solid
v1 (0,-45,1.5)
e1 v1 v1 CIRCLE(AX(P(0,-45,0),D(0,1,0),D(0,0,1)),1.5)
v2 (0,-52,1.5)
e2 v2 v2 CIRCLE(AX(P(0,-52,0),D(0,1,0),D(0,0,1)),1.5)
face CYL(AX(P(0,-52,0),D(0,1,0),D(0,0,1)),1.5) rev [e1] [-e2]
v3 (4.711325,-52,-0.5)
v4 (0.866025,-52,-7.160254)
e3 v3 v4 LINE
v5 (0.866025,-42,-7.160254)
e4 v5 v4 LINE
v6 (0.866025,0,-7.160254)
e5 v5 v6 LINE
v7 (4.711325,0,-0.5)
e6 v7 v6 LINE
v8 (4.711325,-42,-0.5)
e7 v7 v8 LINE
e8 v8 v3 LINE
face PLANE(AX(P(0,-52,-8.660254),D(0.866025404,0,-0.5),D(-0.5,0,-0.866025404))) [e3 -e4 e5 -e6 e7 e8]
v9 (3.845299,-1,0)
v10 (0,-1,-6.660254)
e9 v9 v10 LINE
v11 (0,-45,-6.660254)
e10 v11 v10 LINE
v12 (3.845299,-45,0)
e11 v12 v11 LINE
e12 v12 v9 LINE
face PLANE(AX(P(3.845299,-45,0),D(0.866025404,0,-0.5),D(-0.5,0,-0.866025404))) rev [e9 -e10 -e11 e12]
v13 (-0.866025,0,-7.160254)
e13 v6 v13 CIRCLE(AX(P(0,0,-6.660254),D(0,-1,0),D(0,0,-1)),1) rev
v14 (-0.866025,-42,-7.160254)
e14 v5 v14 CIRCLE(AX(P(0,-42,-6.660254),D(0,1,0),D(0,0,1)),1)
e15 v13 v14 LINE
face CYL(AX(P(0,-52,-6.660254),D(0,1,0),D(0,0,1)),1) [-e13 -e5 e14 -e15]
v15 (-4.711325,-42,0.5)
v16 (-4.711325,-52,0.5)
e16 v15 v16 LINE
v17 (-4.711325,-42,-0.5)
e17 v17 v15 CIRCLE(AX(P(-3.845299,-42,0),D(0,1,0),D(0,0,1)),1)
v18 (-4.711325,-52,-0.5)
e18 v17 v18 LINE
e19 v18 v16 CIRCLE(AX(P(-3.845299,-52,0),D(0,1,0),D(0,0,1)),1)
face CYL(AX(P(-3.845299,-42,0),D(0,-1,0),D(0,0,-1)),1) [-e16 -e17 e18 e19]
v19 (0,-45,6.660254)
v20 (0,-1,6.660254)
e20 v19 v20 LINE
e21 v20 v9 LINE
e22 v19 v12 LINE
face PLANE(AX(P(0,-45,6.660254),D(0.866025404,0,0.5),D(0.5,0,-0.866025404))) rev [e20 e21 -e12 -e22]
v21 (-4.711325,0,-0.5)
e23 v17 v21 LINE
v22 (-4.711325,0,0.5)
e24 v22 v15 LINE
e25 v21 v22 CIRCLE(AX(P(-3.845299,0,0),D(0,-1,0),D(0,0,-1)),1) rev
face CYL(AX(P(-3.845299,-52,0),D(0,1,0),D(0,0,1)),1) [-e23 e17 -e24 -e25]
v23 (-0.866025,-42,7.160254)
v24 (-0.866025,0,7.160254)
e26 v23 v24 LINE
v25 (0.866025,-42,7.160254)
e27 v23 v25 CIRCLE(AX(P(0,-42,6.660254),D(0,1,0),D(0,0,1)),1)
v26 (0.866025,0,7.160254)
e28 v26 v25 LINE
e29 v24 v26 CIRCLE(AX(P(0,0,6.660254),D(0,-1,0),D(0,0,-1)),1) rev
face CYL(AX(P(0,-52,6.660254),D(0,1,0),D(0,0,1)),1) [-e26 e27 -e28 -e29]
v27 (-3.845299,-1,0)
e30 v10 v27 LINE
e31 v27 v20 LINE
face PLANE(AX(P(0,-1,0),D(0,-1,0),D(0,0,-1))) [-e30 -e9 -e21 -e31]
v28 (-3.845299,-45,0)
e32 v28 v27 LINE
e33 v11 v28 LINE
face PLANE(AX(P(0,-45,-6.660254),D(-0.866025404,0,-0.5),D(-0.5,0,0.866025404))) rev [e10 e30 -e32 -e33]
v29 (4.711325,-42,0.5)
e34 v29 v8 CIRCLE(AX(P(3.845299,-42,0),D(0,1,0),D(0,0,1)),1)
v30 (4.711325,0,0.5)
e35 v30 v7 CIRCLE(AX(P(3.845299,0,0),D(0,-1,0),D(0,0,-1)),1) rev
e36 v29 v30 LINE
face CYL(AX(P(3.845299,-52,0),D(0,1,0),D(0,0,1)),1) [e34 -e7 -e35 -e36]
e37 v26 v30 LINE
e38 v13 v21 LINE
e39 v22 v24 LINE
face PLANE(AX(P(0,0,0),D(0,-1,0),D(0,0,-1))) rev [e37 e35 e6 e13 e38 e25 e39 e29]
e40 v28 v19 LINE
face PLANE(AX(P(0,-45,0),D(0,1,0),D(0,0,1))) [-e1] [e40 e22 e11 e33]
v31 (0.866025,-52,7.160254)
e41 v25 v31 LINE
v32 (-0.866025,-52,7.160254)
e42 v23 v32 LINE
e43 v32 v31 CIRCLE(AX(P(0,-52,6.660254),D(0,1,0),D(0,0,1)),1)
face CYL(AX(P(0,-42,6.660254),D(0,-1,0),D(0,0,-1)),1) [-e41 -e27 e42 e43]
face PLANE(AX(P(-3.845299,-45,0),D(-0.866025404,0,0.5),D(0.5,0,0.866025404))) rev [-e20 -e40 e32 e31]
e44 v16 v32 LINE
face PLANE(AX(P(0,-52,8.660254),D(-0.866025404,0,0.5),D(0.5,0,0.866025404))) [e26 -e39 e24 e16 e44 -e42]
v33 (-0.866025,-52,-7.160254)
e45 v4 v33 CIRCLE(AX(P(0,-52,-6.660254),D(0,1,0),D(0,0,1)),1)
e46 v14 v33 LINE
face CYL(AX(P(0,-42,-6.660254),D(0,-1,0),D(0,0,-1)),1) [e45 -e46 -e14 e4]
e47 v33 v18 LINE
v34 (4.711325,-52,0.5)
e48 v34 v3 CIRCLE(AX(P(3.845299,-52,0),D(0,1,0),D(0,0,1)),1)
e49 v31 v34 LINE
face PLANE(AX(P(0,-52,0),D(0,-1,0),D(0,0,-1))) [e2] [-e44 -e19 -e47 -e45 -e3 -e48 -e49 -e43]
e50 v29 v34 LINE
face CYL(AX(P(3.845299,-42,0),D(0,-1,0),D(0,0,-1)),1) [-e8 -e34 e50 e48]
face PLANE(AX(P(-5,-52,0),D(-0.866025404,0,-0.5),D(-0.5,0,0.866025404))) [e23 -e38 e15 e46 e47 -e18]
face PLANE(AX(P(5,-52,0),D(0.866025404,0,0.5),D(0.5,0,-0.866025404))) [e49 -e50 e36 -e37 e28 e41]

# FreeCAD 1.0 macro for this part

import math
import FreeCAD as App
import Part
import Sketcher

V = App.Vector
Q = App.Units.Quantity


def edges_at(feature, points):
    """Names of the edges that pass closest to the given points."""
    edges = feature.Shape.Edges
    near = lambda p: min(range(len(edges)), key=lambda i: edges[i].distToShape(Part.Vertex(*p))[0])
    return sorted({f"Edge{near(p) + 1}" for p in points})


def add_polygon(sketch, points):
    """Adds a closed chain of lines whose ends are joined by coincident constraints."""
    first, n = sketch.GeometryCount, len(points)
    for a, b in zip(points, points[1:] + points[:1]):
        sketch.addGeometry(Part.LineSegment(App.Vector(*a, 0), App.Vector(*b, 0)), False)
    for i in range(n):
        sketch.addConstraint(Sketcher.Constraint("Coincident", first + i, 2, first + (i + 1) % n, 1))

doc = App.newDocument("Part")
body = doc.addObject("PartDesign::Body", "Body")

# Sketch on XZ plane
sketch1 = doc.addObject("Sketcher::SketchObject", "Sketch")
body.addObject(sketch1)
sketch1.AttachmentSupport = (doc.XZ_Plane, [""])
sketch1.MapMode = "FlatFace"
add_polygon(sketch1, [(0, -8.660254), (-5, 0), (0, 8.660254), (5, 0)])  # lines 0-3
sketch1.addConstraint([
    Sketcher.Constraint("Symmetric", 0, 2, 2, 2, -1, 1),
    Sketcher.Constraint("Symmetric", 1, 2, 3, 2, -1, 1),
    Sketcher.Constraint("PointOnObject", 0, 2, -1),
    Sketcher.Constraint("PointOnObject", 1, 2, -2),
    Sketcher.Constraint("Angle", 0, Q("120 deg")),
    Sketcher.Constraint("Distance", 0, Q("10 mm")),
])
pad1 = doc.addObject("PartDesign::Pad", "Pad")
body.addObject(pad1)
pad1.Profile = sketch1
pad1.Length = 52

# Sketch on XZ plane
sketch2 = doc.addObject("Sketcher::SketchObject", "Sketch001")
body.addObject(sketch2)
sketch2.AttachmentSupport = (doc.XZ_Plane, [""])
sketch2.MapMode = "FlatFace"
add_polygon(sketch2, [(0, -6.660254), (-3.845299, 0), (0, 6.660254), (3.845299, 0)])  # lines 0-3
sketch2.addConstraint([
    Sketcher.Constraint("Symmetric", 0, 2, 2, 2, -1, 1),
    Sketcher.Constraint("Symmetric", 1, 2, 3, 2, -1, 1),
    Sketcher.Constraint("PointOnObject", 0, 2, -1),
    Sketcher.Constraint("PointOnObject", 1, 2, -2),
    Sketcher.Constraint("Angle", 0, Q("119.999997 deg")),
    Sketcher.Constraint("Distance", 0, Q("7.690599 mm")),
])
pocket1 = doc.addObject("PartDesign::Pocket", "Pocket")
body.addObject(pocket1)
pocket1.Profile = sketch2
pocket1.Length = 45
pocket1.Reversed = True

# Sketch on XZ plane
sketch3 = doc.addObject("Sketcher::SketchObject", "Sketch002")
body.addObject(sketch3)
sketch3.AttachmentSupport = (doc.XZ_Plane, [""])
sketch3.MapMode = "FlatFace"
sketch3.AttachmentOffset = App.Placement(V(0, 0, 45), App.Rotation())
sketch3.addGeometry(Part.Circle(V(0, 0, 0), V(0, 0, 1), 1.5), False)
sketch3.addConstraint([
    Sketcher.Constraint("Coincident", 0, 3, -1, 1),
    Sketcher.Constraint("Diameter", 0, Q("3 mm")),
])
pocket2 = doc.addObject("PartDesign::Pocket", "Pocket001")
body.addObject(pocket2)
pocket2.Profile = sketch3
pocket2.Type = "ThroughAll"
pocket2.Reversed = True

# Sketch on XZ plane
sketch4 = doc.addObject("Sketcher::SketchObject", "Sketch003")
body.addObject(sketch4)
sketch4.AttachmentSupport = (doc.XZ_Plane, [""])
sketch4.MapMode = "FlatFace"
add_polygon(sketch4, [(0, -6.660254), (-3.845299, 0), (0, 6.660254), (3.845299, 0)])  # lines 0-3
sketch4.addConstraint([
    Sketcher.Constraint("Symmetric", 0, 2, 2, 2, -1, 1),
    Sketcher.Constraint("Symmetric", 1, 2, 3, 2, -1, 1),
    Sketcher.Constraint("PointOnObject", 0, 2, -1),
    Sketcher.Constraint("PointOnObject", 1, 2, -2),
    Sketcher.Constraint("Angle", 0, Q("119.999997 deg")),
    Sketcher.Constraint("Distance", 0, Q("7.690599 mm")),
])
pad2 = doc.addObject("PartDesign::Pad", "Pad001")
body.addObject(pad2)
pad2.Profile = sketch4
pad2.Length = 1

# Sketch on XZ plane
sketch5 = doc.addObject("Sketcher::SketchObject", "Sketch004")
body.addObject(sketch5)
sketch5.AttachmentSupport = (doc.XZ_Plane, [""])
sketch5.MapMode = "FlatFace"
sketch5.AttachmentOffset = App.Placement(V(0, 0, 52), App.Rotation())
sketch5.addGeometry([
    Part.LineSegment(V(0, 8.660254, 0), V(-0.866025, 7.160254, 0)),  # 0
    Part.ArcOfCircle(Part.Circle(V(0, 6.660255, 0), V(0, 0, 1), 0.999999), math.radians(29.999977), math.radians(150.000023)),  # 1
    Part.LineSegment(V(0.866025, 7.160254, 0), V(0, 8.660254, 0)),  # 2
    Part.LineSegment(V(-4.711325, 0.5, 0), V(-5, 0, 0)),  # 3
    Part.LineSegment(V(-5, 0, 0), V(-4.711325, -0.5, 0)),  # 4
    Part.ArcOfCircle(Part.Circle(V(-3.845295, 0, 0), V(0, 0, 1), 1.000004), math.radians(150.000127), math.radians(209.999873)),  # 5
    Part.LineSegment(V(-0.866025, -7.160254, 0), V(0, -8.660254, 0)),  # 6
    Part.LineSegment(V(0, -8.660254, 0), V(0.866025, -7.160254, 0)),  # 7
    Part.ArcOfCircle(Part.Circle(V(0, -6.660255, 0), V(0, 0, 1), 0.999999), math.radians(-150.000023), math.radians(-29.999977)),  # 8
    Part.LineSegment(V(5, 0, 0), V(4.711325, 0.5, 0)),  # 9
    Part.ArcOfCircle(Part.Circle(V(3.845295, 0, 0), V(0, 0, 1), 1.000004), math.radians(-29.999873), math.radians(29.999873)),  # 10
    Part.LineSegment(V(4.711325, -0.5, 0), V(5, 0, 0)),  # 11
], False)
sketch5.addConstraint([
    Sketcher.Constraint("Tangent", 0, 2, 1, 2),
    Sketcher.Constraint("Tangent", 1, 1, 2, 1),
    Sketcher.Constraint("Coincident", 2, 2, 0, 1),
    Sketcher.Constraint("Coincident", 3, 2, 4, 1),
    Sketcher.Constraint("Coincident", 4, 2, 5, 2),
    Sketcher.Constraint("Coincident", 5, 1, 3, 1),
    Sketcher.Constraint("Coincident", 6, 2, 7, 1),
    Sketcher.Constraint("Tangent", 7, 2, 8, 2),
    Sketcher.Constraint("Tangent", 8, 1, 6, 1),
    Sketcher.Constraint("Coincident", 9, 2, 10, 2),
    Sketcher.Constraint("Coincident", 10, 1, 11, 1),
    Sketcher.Constraint("Coincident", 11, 2, 9, 1),
    Sketcher.Constraint("Equal", 1, 8),
    Sketcher.Constraint("Equal", 5, 10),
    Sketcher.Constraint("Symmetric", 1, 3, 8, 3, -1, 1),
    Sketcher.Constraint("Symmetric", 5, 3, 10, 3, -1, 1),
    Sketcher.Constraint("Symmetric", 2, 2, 6, 2, -1, 1),
    Sketcher.Constraint("Symmetric", 3, 2, 11, 2, -1, 1),
    Sketcher.Constraint("Symmetric", 0, 2, 1, 1, -2),
    Sketcher.Constraint("Symmetric", 5, 1, 9, 2, -2),
    Sketcher.Constraint("PointOnObject", 3, 2, -1),
    Sketcher.Constraint("Parallel", 0, 3),
    Sketcher.Constraint("Horizontal", 4, 2, 10, 1),
    Sketcher.Constraint("Vertical", 4, 2, 5, 1),
    Sketcher.Constraint("Radius", 1, Q("0.999999 mm")),
    Sketcher.Constraint("Angle", 0, Q("-119.999988 deg")),
    Sketcher.Constraint("DistanceX", 3, 2, -1, 1, Q("5 mm")),
    Sketcher.Constraint("DistanceY", 4, 2, 5, 1, Q("1 mm")),
    Sketcher.Constraint("Radius", 5, Q("1.000004 mm")),
    Sketcher.Constraint("DistanceY", 8, 3, 1, 3, Q("13.320509 mm")),
])
pocket3 = doc.addObject("PartDesign::Pocket", "Pocket002")
body.addObject(pocket3)
pocket3.Profile = sketch5
pocket3.Length = 10
doc.recompute()

fillet = doc.addObject("PartDesign::Fillet", "Fillet")
body.addObject(fillet)
fillet.Base = (pocket3, edges_at(pocket3, [
    (-5, -21, 0),
    (0, -21, 8.66),
    (5, -21, 0),
    (0, -21, -8.66),
]))
fillet.Radius = 1

doc.recompute()
